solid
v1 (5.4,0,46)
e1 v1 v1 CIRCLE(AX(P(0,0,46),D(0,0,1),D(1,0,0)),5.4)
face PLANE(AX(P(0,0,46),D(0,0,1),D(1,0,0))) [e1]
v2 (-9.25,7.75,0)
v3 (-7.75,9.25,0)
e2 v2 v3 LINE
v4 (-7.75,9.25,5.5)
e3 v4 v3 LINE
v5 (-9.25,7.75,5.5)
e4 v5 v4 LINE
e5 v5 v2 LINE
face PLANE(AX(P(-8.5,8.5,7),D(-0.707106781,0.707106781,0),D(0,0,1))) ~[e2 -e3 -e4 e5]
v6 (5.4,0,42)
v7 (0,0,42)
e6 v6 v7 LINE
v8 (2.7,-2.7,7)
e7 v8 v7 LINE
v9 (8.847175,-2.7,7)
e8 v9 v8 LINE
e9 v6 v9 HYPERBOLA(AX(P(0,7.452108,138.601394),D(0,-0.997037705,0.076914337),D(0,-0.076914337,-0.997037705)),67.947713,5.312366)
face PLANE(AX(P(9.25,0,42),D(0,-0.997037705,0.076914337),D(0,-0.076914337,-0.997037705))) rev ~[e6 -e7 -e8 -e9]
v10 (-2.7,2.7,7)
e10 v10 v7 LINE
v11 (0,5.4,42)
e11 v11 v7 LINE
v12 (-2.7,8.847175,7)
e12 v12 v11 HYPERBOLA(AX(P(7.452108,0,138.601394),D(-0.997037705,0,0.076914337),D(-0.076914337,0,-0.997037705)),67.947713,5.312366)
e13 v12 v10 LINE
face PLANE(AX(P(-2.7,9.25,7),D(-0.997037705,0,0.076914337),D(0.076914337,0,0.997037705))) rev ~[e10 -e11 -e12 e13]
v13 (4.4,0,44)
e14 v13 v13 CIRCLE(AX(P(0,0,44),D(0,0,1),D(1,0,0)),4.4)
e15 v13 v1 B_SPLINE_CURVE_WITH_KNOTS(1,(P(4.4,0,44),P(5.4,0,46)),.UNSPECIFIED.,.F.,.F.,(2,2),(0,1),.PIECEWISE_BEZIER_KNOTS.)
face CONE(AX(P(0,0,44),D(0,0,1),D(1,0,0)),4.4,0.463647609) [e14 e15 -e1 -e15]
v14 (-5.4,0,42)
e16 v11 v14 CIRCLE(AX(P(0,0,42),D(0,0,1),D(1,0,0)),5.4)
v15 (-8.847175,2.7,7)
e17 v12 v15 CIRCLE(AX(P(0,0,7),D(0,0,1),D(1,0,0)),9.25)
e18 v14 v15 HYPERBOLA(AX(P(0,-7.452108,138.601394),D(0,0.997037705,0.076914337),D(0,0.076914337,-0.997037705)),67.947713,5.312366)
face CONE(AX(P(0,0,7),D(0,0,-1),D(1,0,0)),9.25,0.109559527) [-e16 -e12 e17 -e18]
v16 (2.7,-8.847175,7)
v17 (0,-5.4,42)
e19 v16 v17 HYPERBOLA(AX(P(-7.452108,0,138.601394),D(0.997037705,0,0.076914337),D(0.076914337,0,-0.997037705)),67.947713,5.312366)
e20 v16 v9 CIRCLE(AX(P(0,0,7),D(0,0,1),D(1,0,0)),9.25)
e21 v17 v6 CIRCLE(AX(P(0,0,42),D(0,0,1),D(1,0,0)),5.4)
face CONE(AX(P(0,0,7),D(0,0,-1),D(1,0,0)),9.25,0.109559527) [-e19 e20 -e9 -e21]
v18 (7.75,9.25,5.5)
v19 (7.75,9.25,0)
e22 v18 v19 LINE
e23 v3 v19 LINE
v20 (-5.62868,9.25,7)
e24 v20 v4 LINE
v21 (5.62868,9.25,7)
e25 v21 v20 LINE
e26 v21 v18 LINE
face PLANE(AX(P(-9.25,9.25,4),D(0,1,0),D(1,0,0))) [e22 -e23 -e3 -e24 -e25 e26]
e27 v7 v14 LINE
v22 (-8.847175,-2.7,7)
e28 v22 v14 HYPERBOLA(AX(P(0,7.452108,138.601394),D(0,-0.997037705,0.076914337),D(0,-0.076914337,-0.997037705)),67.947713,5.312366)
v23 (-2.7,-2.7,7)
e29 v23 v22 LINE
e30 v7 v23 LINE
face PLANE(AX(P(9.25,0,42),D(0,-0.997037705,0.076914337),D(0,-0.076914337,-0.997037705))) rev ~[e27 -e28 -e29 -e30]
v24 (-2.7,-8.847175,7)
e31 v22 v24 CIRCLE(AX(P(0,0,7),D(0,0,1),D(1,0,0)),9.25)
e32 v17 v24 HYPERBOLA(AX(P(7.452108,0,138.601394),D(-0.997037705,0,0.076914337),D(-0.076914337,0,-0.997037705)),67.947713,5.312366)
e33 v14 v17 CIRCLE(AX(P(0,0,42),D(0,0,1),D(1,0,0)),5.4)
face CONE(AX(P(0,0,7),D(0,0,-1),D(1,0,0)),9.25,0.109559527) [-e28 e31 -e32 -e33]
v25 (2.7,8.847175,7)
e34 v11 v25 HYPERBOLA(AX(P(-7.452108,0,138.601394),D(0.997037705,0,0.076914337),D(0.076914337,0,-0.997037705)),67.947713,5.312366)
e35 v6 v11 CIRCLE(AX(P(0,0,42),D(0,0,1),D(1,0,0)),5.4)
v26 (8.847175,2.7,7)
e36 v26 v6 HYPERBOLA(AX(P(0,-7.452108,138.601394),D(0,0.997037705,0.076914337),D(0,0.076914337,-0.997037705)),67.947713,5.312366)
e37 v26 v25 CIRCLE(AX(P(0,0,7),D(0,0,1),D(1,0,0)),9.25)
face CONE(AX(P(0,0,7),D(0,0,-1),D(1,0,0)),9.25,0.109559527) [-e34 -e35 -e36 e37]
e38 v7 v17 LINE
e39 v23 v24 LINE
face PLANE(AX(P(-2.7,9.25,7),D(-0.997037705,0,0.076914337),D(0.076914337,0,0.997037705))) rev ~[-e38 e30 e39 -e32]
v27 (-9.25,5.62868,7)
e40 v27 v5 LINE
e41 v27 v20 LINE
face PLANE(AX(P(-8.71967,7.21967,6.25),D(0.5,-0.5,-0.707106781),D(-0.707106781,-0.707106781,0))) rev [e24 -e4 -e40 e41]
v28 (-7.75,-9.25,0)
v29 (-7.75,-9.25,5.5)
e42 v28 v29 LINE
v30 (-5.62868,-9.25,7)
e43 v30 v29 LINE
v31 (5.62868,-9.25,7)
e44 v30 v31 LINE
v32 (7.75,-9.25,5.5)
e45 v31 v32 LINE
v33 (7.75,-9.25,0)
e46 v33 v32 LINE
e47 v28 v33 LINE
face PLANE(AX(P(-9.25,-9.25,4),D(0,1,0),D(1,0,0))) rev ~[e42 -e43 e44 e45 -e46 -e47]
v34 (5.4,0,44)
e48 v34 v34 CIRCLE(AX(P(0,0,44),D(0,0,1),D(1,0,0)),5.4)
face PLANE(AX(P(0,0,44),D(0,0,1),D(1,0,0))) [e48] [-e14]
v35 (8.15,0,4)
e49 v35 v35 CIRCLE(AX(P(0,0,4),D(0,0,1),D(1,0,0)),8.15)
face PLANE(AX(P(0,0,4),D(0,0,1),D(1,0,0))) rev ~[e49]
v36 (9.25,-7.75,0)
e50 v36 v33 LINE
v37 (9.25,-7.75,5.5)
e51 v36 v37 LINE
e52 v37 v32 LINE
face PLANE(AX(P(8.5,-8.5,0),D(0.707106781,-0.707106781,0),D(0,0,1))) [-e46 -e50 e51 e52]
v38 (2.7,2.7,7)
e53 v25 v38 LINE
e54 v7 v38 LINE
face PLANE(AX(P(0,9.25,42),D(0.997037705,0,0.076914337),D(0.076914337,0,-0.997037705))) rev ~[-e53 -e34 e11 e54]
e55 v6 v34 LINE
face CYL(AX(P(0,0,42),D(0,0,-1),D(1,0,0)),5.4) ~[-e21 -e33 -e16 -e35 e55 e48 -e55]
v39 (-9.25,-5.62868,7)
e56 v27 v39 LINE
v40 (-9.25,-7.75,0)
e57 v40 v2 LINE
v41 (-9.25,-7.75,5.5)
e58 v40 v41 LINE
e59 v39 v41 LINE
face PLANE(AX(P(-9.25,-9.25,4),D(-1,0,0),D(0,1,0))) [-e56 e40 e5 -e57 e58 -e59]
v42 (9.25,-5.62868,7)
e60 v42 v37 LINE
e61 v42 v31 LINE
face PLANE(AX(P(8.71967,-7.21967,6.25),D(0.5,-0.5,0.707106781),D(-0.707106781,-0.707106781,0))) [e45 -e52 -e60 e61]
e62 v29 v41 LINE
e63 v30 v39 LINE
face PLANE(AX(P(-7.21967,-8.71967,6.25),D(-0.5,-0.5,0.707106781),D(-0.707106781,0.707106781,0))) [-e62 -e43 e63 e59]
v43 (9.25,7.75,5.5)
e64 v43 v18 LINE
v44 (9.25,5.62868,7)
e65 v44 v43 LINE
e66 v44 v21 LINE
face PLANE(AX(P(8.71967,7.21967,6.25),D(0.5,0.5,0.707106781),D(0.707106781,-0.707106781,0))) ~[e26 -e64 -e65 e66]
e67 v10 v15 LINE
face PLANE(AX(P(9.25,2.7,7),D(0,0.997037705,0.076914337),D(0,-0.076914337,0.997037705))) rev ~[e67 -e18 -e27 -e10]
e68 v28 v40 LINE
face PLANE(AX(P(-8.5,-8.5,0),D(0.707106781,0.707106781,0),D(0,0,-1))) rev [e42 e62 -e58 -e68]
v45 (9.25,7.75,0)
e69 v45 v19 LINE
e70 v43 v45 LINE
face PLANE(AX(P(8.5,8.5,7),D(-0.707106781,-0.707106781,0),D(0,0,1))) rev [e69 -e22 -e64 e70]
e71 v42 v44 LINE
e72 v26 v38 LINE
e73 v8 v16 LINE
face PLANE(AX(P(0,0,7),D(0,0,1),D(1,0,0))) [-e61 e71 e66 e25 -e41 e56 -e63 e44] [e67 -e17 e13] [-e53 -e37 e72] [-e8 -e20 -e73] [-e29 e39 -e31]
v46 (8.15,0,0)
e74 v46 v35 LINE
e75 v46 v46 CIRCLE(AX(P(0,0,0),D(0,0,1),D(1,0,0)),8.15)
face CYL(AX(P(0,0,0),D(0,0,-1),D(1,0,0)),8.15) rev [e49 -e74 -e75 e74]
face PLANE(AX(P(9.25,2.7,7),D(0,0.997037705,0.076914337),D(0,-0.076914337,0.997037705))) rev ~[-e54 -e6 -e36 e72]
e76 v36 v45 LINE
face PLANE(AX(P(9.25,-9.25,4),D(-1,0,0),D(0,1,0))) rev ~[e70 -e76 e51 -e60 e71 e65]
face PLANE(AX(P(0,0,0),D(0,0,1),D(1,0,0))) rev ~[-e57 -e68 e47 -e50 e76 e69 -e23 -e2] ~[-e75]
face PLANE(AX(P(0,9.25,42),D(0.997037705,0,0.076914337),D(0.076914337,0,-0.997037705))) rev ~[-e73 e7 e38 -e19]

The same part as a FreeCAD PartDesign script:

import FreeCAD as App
import Part
import Sketcher

V = App.Vector
Q = App.Units.Quantity


def edges_at(feature, points):
    """Names of the edges that pass closest to the given points."""
    edges = feature.Shape.Edges
    near = lambda p: min(range(len(edges)), key=lambda i: edges[i].distToShape(Part.Vertex(*p))[0])
    return sorted({f"Edge{near(p) + 1}" for p in points})


def add_polygon(sketch, points):
    """Adds a closed chain of lines whose ends are joined by coincident constraints."""
    first, n = sketch.GeometryCount, len(points)
    for a, b in zip(points, points[1:] + points[:1]):
        sketch.addGeometry(Part.LineSegment(App.Vector(*a, 0), App.Vector(*b, 0)), False)
    for i in range(n):
        sketch.addConstraint(Sketcher.Constraint("Coincident", first + i, 2, first + (i + 1) % n, 1))

doc = App.newDocument("Part")
body = doc.addObject("PartDesign::Body", "Body")

sketch1 = doc.addObject("Sketcher::SketchObject", "Sketch")
body.addObject(sketch1)
sketch1.AttachmentSupport = (doc.XY_Plane, [""])
sketch1.MapMode = "FlatFace"
add_polygon(sketch1, [(-9.25, 9.25), (-9.25, -9.25), (9.25, -9.25), (9.25, 9.25)])
sketch1.addGeometry(Part.Circle(V(0, 0, 0), V(0, 0, 1), 8.15), False)
sketch1.addConstraint([
    Sketcher.Constraint("Vertical", 0),
    Sketcher.Constraint("Horizontal", 1),
    Sketcher.Constraint("Vertical", 2),
    Sketcher.Constraint("Horizontal", 3),
    Sketcher.Constraint("Coincident", 4, 3, -1, 1),
    Sketcher.Constraint("Symmetric", 0, 2, 2, 2, -1, 1),
    Sketcher.Constraint("Equal", 3, 0),
    Sketcher.Constraint("Diameter", 4, Q("16.3 mm")),
    Sketcher.Constraint("DistanceX", 1, 1, 1, 2, Q("18.5 mm")),
])
pad1 = doc.addObject("PartDesign::Pad", "Pad")
body.addObject(pad1)
pad1.Profile = sketch1
pad1.Length = 4

sketch2 = doc.addObject("Sketcher::SketchObject", "Sketch001")
body.addObject(sketch2)
sketch2.AttachmentSupport = (doc.XY_Plane, [""])
sketch2.MapMode = "FlatFace"
sketch2.AttachmentOffset = App.Placement(V(0, 0, 4), App.Rotation())
add_polygon(sketch2, [(-9.25, 9.25), (-9.25, -9.25), (9.25, -9.25), (9.25, 9.25)])
sketch2.addConstraint([
    Sketcher.Constraint("Vertical", 0),
    Sketcher.Constraint("Horizontal", 1),
    Sketcher.Constraint("Vertical", 2),
    Sketcher.Constraint("Horizontal", 3),
    Sketcher.Constraint("Symmetric", 0, 2, 2, 2, -1, 1),
    Sketcher.Constraint("Equal", 3, 0),
    Sketcher.Constraint("DistanceX", 1, 1, 1, 2, Q("18.5 mm")),
])
pad2 = doc.addObject("PartDesign::Pad", "Pad001")
body.addObject(pad2)
pad2.Profile = sketch2
pad2.Length = 3

sketch3 = doc.addObject("Sketcher::SketchObject", "Sketch002")
body.addObject(sketch3)
sketch3.AttachmentSupport = (doc.XY_Plane, [""])
sketch3.MapMode = "FlatFace"
sketch3.AttachmentOffset = App.Placement(V(0, 0, 7), App.Rotation())
sketch3.addGeometry(Part.Circle(V(0, 0, 0), V(0, 0, 1), 9.25), False)
sketch3.addConstraint([
    Sketcher.Constraint("Coincident", 0, 3, -1, 1),
    Sketcher.Constraint("Diameter", 0, Q("18.5 mm")),
])

sketch4 = doc.addObject("Sketcher::SketchObject", "Sketch003")
body.addObject(sketch4)
sketch4.AttachmentSupport = (doc.XY_Plane, [""])
sketch4.MapMode = "FlatFace"
sketch4.AttachmentOffset = App.Placement(V(0, 0, 42), App.Rotation())
sketch4.addGeometry(Part.Circle(V(0, 0, 0), V(0, 0, 1), 5.4), False)
sketch4.addConstraint([
    Sketcher.Constraint("Coincident", 0, 3, -1, 1),
    Sketcher.Constraint("Diameter", 0, Q("10.8 mm")),
])

additiveloft = doc.addObject("PartDesign::AdditiveLoft", "AdditiveLoft")
body.addObject(additiveloft)
additiveloft.Profile = sketch3
additiveloft.Sections = [sketch4]

sketch5 = doc.addObject("Sketcher::SketchObject", "Sketch004")
body.addObject(sketch5)
sketch5.AttachmentSupport = (doc.XY_Plane, [""])
sketch5.MapMode = "FlatFace"
sketch5.AttachmentOffset = App.Placement(V(0, 0, 42), App.Rotation())
sketch5.addGeometry(Part.Circle(V(0, 0, 0), V(0, 0, 1), 5.4), False)
sketch5.addConstraint([
    Sketcher.Constraint("Coincident", 0, 3, -1, 1),
    Sketcher.Constraint("Diameter", 0, Q("10.8 mm")),
])
pad3 = doc.addObject("PartDesign::Pad", "Pad002")
body.addObject(pad3)
pad3.Profile = sketch5
pad3.Length = 2
doc.recompute()

chamfer = doc.addObject("PartDesign::Chamfer", "Chamfer")
body.addObject(chamfer)
chamfer.Base = (pad3, edges_at(pad3, [
    (-9.25, -9.25, 3.5),
    (-9.25, -9.25, 3.5),
    (9.25, -9.25, 3.5),
    (9.25, -9.25, 3.5),
    (9.25, 9.25, 3.5),
    (9.25, 9.25, 3.5),
    (-9.25, 9.25, 3.5),
    (-9.25, 9.25, 3.5),
]))
chamfer.Size = 1.5
doc.recompute()

chamfer2 = doc.addObject("PartDesign::Chamfer", "Chamfer001")
body.addObject(chamfer2)
chamfer2.Base = (chamfer, edges_at(chamfer, [
    (8.5, -8.5, 7),
    (-8.5, -8.5, 7),
    (-8.5, 8.5, 7),
    (8.5, 8.5, 7),
]))
chamfer2.Size = 1.5

sketch6 = doc.addObject("Sketcher::SketchObject", "Sketch005")
body.addObject(sketch6)
sketch6.AttachmentSupport = (doc.YZ_Plane, [""])
sketch6.MapMode = "FlatFace"
sketch6.AttachmentOffset = App.Placement(V(0, 0, 9.25), App.Rotation())
add_polygon(sketch6, [(0, 42), (-2.7, 7), (2.7, 7)])
sketch6.addConstraint([
    Sketcher.Constraint("Horizontal", 1),
    Sketcher.Constraint("PointOnObject", 2, 2, -2),
    Sketcher.Constraint("Equal", 0, 2),
    Sketcher.Constraint("DistanceX", 1, 1, 1, 2, Q("5.4 mm")),
    Sketcher.Constraint("DistanceY", -1, 1, 0, 2, Q("7 mm")),
    Sketcher.Constraint("DistanceY", -1, 1, 2, 2, Q("42 mm")),
])
pocket1 = doc.addObject("PartDesign::Pocket", "Pocket")
body.addObject(pocket1)
pocket1.Profile = sketch6
pocket1.Type = "ThroughAll"
doc.recompute()

polarpattern = doc.addObject("PartDesign::PolarPattern", "PolarPattern")
body.addObject(polarpattern)
polarpattern.Originals = [pocket1]
polarpattern.Axis = (doc.Z_Axis, [""])
polarpattern.Angle = 360
polarpattern.Occurrences = 4
body.Tip = polarpattern

sketch7 = doc.addObject("Sketcher::SketchObject", "Sketch006")
body.addObject(sketch7)
sketch7.AttachmentSupport = (doc.XY_Plane, [""])
sketch7.MapMode = "FlatFace"
sketch7.AttachmentOffset = App.Placement(V(0, 0, 44), App.Rotation())
sketch7.addGeometry(Part.Circle(V(0, 0, 0), V(0, 0, 1), 4.4), False)
sketch7.addConstraint([
    Sketcher.Constraint("Coincident", 0, 3, -1, 1),
    Sketcher.Constraint("Diameter", 0, Q("8.8 mm")),
])

sketch8 = doc.addObject("Sketcher::SketchObject", "Sketch007")
body.addObject(sketch8)
sketch8.AttachmentSupport = (doc.XY_Plane, [""])
sketch8.MapMode = "FlatFace"
sketch8.AttachmentOffset = App.Placement(V(0, 0, 46), App.Rotation())
sketch8.addGeometry(Part.Circle(V(0, 0, 0), V(0, 0, 1), 5.4), False)
sketch8.addConstraint([
    Sketcher.Constraint("Coincident", 0, 3, -1, 1),
    Sketcher.Constraint("Diameter", 0, Q("10.8 mm")),
])

additiveloft2 = doc.addObject("PartDesign::AdditiveLoft", "AdditiveLoft001")
body.addObject(additiveloft2)
additiveloft2.Profile = sketch7
additiveloft2.Sections = [sketch8]

doc.recompute()
